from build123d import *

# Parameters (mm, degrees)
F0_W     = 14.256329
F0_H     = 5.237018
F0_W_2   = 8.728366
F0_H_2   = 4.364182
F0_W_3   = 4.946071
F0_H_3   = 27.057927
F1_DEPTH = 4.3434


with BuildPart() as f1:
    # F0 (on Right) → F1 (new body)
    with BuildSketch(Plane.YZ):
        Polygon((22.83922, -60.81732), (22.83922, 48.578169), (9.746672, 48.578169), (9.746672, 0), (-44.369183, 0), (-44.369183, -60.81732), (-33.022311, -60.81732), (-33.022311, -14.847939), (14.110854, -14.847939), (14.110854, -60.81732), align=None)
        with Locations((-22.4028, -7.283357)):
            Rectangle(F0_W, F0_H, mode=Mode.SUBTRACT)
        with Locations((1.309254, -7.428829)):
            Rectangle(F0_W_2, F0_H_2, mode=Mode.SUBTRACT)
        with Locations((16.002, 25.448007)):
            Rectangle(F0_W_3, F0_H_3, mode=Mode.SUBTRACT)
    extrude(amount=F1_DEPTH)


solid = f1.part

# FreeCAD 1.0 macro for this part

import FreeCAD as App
import Part
import Sketcher

V = App.Vector
Q = App.Units.Quantity


def add_polygon(sketch, points):
    """Adds a closed chain of lines whose ends are joined by coincident constraints."""
    first, n = sketch.GeometryCount, len(points)
    for a, b in zip(points, points[1:] + points[:1]):
        sketch.addGeometry(Part.LineSegment(App.Vector(*a, 0), App.Vector(*b, 0)), False)
    for i in range(n):
        sketch.addConstraint(Sketcher.Constraint("Coincident", first + i, 2, first + (i + 1) % n, 1))

doc = App.newDocument("Part")
body = doc.addObject("PartDesign::Body", "Body")

# Sketch on YZ plane
sketch1 = body.newObject("Sketcher::SketchObject", "Sketch")
sketch1.AttachmentSupport = (doc.getObject("YZ_Plane"), [""])
sketch1.MapMode = "FlatFace"
add_polygon(sketch1, [(22.83922, -60.81732), (22.83922, 48.578169), (9.746672, 48.578169), (9.746672, 0), (-44.369183, 0), (-44.369183, -60.81732), (-33.022311, -60.81732), (-33.022311, -14.847939), (14.110854, -14.847939), (14.110854, -60.81732)])  # lines 0-9
add_polygon(sketch1, [(-15.274636, -9.901866), (-29.530964, -9.901866), (-29.530964, -4.664848), (-15.274636, -4.664848)])  # lines 10-13
add_polygon(sketch1, [(5.673437, -9.61092), (-3.054929, -9.61092), (-3.054929, -5.246738), (5.673437, -5.246738)])  # lines 14-17
add_polygon(sketch1, [(18.475036, 11.919044), (13.528965, 11.919044), (13.528965, 38.976971), (18.475036, 38.976971)])  # lines 18-21
sketch1.addConstraint([
    Sketcher.Constraint("Vertical", 0),
    Sketcher.Constraint("Horizontal", 1),
    Sketcher.Constraint("Vertical", 2),
    Sketcher.Constraint("Horizontal", 3),
    Sketcher.Constraint("Vertical", 4),
    Sketcher.Constraint("Horizontal", 5),
    Sketcher.Constraint("Vertical", 6),
    Sketcher.Constraint("Horizontal", 7),
    Sketcher.Constraint("Vertical", 8),
    Sketcher.Constraint("Horizontal", 9),
    Sketcher.Constraint("Horizontal", 10),
    Sketcher.Constraint("Vertical", 11),
    Sketcher.Constraint("Horizontal", 12),
    Sketcher.Constraint("Vertical", 13),
    Sketcher.Constraint("Horizontal", 14),
    Sketcher.Constraint("Vertical", 15),
    Sketcher.Constraint("Horizontal", 16),
    Sketcher.Constraint("Vertical", 17),
    Sketcher.Constraint("Horizontal", 18),
    Sketcher.Constraint("Vertical", 19),
    Sketcher.Constraint("Horizontal", 20),
    Sketcher.Constraint("Vertical", 21),
    Sketcher.Constraint("PointOnObject", 2, 2, -1),
    Sketcher.Constraint("Horizontal", 5, 2, 8, 2),
    Sketcher.Constraint("Equal", 9, 14),
    Sketcher.Constraint("DistanceX", 3, 2, 0, 2, Q("2.6460001 in")),
    Sketcher.Constraint("DistanceX", 14, 2, 2, 2, Q("0.504 in")),
    Sketcher.Constraint("DistanceY", 7, 2, 15, 2, Q("0.378 in")),
    Sketcher.Constraint("DistanceY", 19, 2, 1, 2, Q("0.3779999 in")),
    Sketcher.Constraint("DistanceX", 16, 2, 21, 2, Q("0.5039999 in")),
    Sketcher.Constraint("DistanceX", 1, 2, 1, 1, Q("13.092548 mm")),
    Sketcher.Constraint("DistanceX", 5, 1, 5, 2, Q("11.346872 mm")),
    Sketcher.Constraint("DistanceX", 10, 2, 10, 1, Q("14.256329 mm")),
    Sketcher.Constraint("DistanceX", 18, 2, 18, 1, Q("4.946071 mm")),
    Sketcher.Constraint("DistanceY", 0, 1, 0, 2, Q("109.395489 mm")),
    Sketcher.Constraint("DistanceY", 2, 2, 2, 1, Q("48.578169 mm")),
    Sketcher.Constraint("DistanceY", 6, 1, 6, 2, Q("45.969381 mm")),
    Sketcher.Constraint("DistanceX", 7, 1, 7, 2, Q("47.133165 mm")),
    Sketcher.Constraint("DistanceY", 11, 1, 11, 2, Q("5.237018 mm")),
    Sketcher.Constraint("DistanceY", 15, 1, 15, 2, Q("4.364182 mm")),
    Sketcher.Constraint("DistanceY", 19, 1, 19, 2, Q("27.057927 mm")),
    Sketcher.Constraint("DistanceX", -1, 1, 0, 2, Q("22.83922 mm")),
    Sketcher.Constraint("DistanceX", 3, 2, 10, 2, Q("14.838218 mm")),
    Sketcher.Constraint("DistanceY", 6, 2, 11, 2, Q("10.183091 mm")),
])
pad1 = body.newObject("PartDesign::Pad", "Pad")
pad1.Profile = sketch1
pad1.Length = Q("0.171 in")

doc.recompute()
